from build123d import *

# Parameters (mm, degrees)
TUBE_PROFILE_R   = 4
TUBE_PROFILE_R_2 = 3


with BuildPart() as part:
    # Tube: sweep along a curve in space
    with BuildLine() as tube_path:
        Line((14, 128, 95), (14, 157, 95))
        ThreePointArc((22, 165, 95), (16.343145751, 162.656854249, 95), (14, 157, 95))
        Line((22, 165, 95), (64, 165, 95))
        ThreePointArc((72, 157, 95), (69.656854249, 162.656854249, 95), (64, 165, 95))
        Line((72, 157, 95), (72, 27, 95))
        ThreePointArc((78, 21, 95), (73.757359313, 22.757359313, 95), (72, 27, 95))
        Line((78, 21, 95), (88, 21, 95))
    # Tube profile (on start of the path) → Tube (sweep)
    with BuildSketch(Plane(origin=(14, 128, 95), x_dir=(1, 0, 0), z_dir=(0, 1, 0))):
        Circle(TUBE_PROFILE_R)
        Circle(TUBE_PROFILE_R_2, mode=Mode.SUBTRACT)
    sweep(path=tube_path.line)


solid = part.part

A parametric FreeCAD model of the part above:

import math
import FreeCAD as App
import Part
import Sketcher
Q = App.Units.Quantity

doc = App.newDocument("Part")
body = doc.addObject("PartDesign::Body", "Body")

# Sketch on XZ plane
sketch1 = body.newObject("Sketcher::SketchObject", "Sketch")
sketch1.AttachmentSupport = (doc.getObject("XZ_Plane"), [""])
sketch1.MapMode = "FlatFace"
sketch1.AttachmentOffset = App.Placement(App.Vector(0, 0, -128), App.Rotation())
sketch1.addGeometry([
    Part.Circle(App.Vector(14, 95, 0), App.Vector(0, 0, 1), 4),
    Part.Circle(App.Vector(14, 95, 0), App.Vector(0, 0, 1), 3),
], False)
sketch1.addConstraint([
    Sketcher.Constraint("Coincident", 1, 3, 0, 3),
    Sketcher.Constraint("Diameter", 0, Q("8 mm")),
    Sketcher.Constraint("Diameter", 1, Q("6 mm")),
    Sketcher.Constraint("DistanceX", -1, 1, 0, 3, Q("14 mm")),
    Sketcher.Constraint("DistanceY", -1, 1, 0, 3, Q("95 mm")),
])

# Sketch on XY plane
sketch2 = body.newObject("Sketcher::SketchObject", "Sketch001")
sketch2.AttachmentSupport = (doc.getObject("XY_Plane"), [""])
sketch2.MapMode = "FlatFace"
sketch2.AttachmentOffset = App.Placement(App.Vector(0, 0, 95), App.Rotation())
sketch2.addGeometry([
    Part.LineSegment(App.Vector(14, 128, 0), App.Vector(14, 157, 0)),  # 0
    Part.ArcOfCircle(Part.Circle(App.Vector(22, 157, 0), App.Vector(0, 0, 1), 8), math.radians(90), math.radians(180)),  # 1
    Part.LineSegment(App.Vector(22, 165, 0), App.Vector(64, 165, 0)),  # 2
    Part.ArcOfCircle(Part.Circle(App.Vector(64, 157, 0), App.Vector(0, 0, 1), 8), math.radians(0), math.radians(90)),  # 3
    Part.LineSegment(App.Vector(72, 157, 0), App.Vector(72, 27, 0)),  # 4
    Part.ArcOfCircle(Part.Circle(App.Vector(78, 27, 0), App.Vector(0, 0, 1), 6), math.radians(180), math.radians(270)),  # 5
    Part.LineSegment(App.Vector(78, 21, 0), App.Vector(88, 21, 0)),  # 6
], False)
sketch2.addConstraint([
    Sketcher.Constraint("Tangent", 0, 2, 1, 2),
    Sketcher.Constraint("Tangent", 1, 1, 2, 1),
    Sketcher.Constraint("Tangent", 2, 2, 3, 2),
    Sketcher.Constraint("Tangent", 3, 1, 4, 1),
    Sketcher.Constraint("Tangent", 4, 2, 5, 1),
    Sketcher.Constraint("Tangent", 5, 2, 6, 1),
    Sketcher.Constraint("Vertical", 0),
    Sketcher.Constraint("Horizontal", 2),
    Sketcher.Constraint("Vertical", 4),
    Sketcher.Constraint("Horizontal", 6),
    Sketcher.Constraint("Equal", 1, 3),
    Sketcher.Constraint("Radius", 1, Q("8 mm")),
    Sketcher.Constraint("Radius", 5, Q("6 mm")),
    Sketcher.Constraint("DistanceX", 2, 1, 2, 2, Q("42 mm")),
    Sketcher.Constraint("DistanceX", 6, 1, 6, 2, Q("10 mm")),
    Sketcher.Constraint("DistanceY", 0, 1, 0, 2, Q("29 mm")),
    Sketcher.Constraint("DistanceY", 4, 2, 4, 1, Q("130 mm")),
    Sketcher.Constraint("DistanceX", -1, 1, 1, 3, Q("22 mm")),
    Sketcher.Constraint("DistanceY", -1, 1, 1, 3, Q("157 mm")),
])
doc.recompute()

additivepipe = body.newObject("PartDesign::AdditivePipe", "AdditivePipe")
additivepipe.Profile = sketch1
additivepipe.Spine = (sketch2, ["Edge1", "Edge2", "Edge3", "Edge4", "Edge5", "Edge6", "Edge7"])

doc.recompute()
